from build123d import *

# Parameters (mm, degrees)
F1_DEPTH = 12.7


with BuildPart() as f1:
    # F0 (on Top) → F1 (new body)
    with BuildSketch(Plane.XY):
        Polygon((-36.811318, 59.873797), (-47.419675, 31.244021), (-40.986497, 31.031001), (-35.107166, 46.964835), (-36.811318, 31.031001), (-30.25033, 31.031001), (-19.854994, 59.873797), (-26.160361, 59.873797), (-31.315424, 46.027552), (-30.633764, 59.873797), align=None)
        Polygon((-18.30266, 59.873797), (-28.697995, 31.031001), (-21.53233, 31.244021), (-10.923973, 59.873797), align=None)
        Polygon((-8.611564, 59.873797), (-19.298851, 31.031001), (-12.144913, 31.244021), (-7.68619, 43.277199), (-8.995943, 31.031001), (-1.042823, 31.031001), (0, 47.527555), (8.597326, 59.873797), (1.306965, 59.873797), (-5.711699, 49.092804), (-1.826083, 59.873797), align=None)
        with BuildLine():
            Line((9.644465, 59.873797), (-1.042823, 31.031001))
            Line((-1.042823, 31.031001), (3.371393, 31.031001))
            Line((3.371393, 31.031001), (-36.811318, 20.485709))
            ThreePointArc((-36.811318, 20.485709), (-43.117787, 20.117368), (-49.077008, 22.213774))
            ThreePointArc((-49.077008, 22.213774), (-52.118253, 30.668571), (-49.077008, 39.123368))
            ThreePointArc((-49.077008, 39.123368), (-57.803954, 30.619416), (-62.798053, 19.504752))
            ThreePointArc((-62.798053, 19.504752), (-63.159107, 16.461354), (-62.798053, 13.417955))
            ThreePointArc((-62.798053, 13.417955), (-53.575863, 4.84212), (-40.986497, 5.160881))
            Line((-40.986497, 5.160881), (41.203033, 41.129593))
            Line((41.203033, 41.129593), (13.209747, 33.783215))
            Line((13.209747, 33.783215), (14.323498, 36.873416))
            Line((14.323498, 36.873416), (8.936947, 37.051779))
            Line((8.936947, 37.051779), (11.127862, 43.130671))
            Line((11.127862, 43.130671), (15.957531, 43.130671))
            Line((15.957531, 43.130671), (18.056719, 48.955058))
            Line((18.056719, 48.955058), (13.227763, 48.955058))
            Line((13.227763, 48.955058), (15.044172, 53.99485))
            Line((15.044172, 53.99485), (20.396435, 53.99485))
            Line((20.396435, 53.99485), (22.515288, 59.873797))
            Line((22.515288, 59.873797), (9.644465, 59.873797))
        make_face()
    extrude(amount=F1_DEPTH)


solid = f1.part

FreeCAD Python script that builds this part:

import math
import FreeCAD as App
import Part
import Sketcher
from FreeCAD import Vector
Q = App.Units.Quantity


def add_polygon(sketch, points):
    """Adds a closed chain of lines whose ends are joined by coincident constraints."""
    first, n = sketch.GeometryCount, len(points)
    for a, b in zip(points, points[1:] + points[:1]):
        sketch.addGeometry(Part.LineSegment(App.Vector(*a, 0), App.Vector(*b, 0)), False)
    for i in range(n):
        sketch.addConstraint(Sketcher.Constraint("Coincident", first + i, 2, first + (i + 1) % n, 1))

doc = App.newDocument("Part")
params = doc.addObject("Spreadsheet::Sheet", "Params")
for row, (alias, value) in enumerate([
    ("pad1_length", "0.5 in"),
], start=1):
    params.set(f"A{row}", alias)
    params.set(f"B{row}", "=" + value)
    params.setAlias(f"B{row}", alias)

body = doc.addObject("PartDesign::Body", "Body")
body.AllowCompound = True

sketch1 = body.newObject("Sketcher::SketchObject", "Sketch")
sketch1.AttachmentSupport = (doc.getObject("XY_Plane"), [""])
sketch1.MapMode = "FlatFace"
add_polygon(sketch1, [(-36.8, 59.9), (-47.4, 31.2), (-41, 31), (-35.1, 47), (-36.8, 31), (-30.3, 31), (-19.9, 59.9), (-26.2, 59.9), (-31.3, 46), (-30.6, 59.9)])
add_polygon(sketch1, [(-18.3, 59.9), (-28.7, 31), (-21.5, 31.2), (-10.9, 59.9)])
add_polygon(sketch1, [(-8.6, 59.9), (-19.3, 31), (-12.1, 31.2), (-7.7, 43.3), (-9, 31), (-1, 31), (0, 47.5), (8.6, 59.9), (1.3, 59.9), (-5.7, 49.1), (-1.8, 59.9)])
sketch1.addGeometry(Part.LineSegment(Vector(9.6, 59.9, 0), Vector(-1, 31, 0)), False)
sketch1.addGeometry(Part.LineSegment(Vector(-1, 31, 0), Vector(3.4, 31, 0)), False)
sketch1.addGeometry(Part.LineSegment(Vector(3.4, 31, 0), Vector(-36.8, 20.5, 0)), False)
sketch1.addGeometry(Part.ArcOfCircle(Part.Circle(Vector(-40.9, 36, 0), Vector(0, 0, 1), 16), math.radians(-121), math.radians(-75)), False)
sketch1.addGeometry(Part.ArcOfCircle(Part.Circle(Vector(-38.8, 30.7, 0), Vector(0, 0, 1), 13.3), math.radians(140), math.radians(220)), False)
sketch1.addGeometry(Part.ArcOfCircle(Part.Circle(Vector(-31.1, 11.9, 0), Vector(0, 0, 1), 32.6), math.radians(123), math.radians(167)), False)
sketch1.addGeometry(Part.ArcOfCircle(Part.Circle(Vector(-50.2, 16.5, 0), Vector(0, 0, 1), 13), math.radians(166), math.radians(194)), False)
sketch1.addGeometry(Part.ArcOfCircle(Part.Circle(Vector(-47.7, 20.4, 0), Vector(0, 0, 1), 16.7), math.radians(-155), math.radians(-66)), False)
sketch1.addGeometry(Part.LineSegment(Vector(-41, 5.2, 0), Vector(41.2, 41.1, 0)), False)
sketch1.addGeometry(Part.LineSegment(Vector(41.2, 41.1, 0), Vector(13.2, 33.8, 0)), False)
sketch1.addGeometry(Part.LineSegment(Vector(13.2, 33.8, 0), Vector(14.3, 36.9, 0)), False)
sketch1.addGeometry(Part.LineSegment(Vector(14.3, 36.9, 0), Vector(8.9, 37.1, 0)), False)
sketch1.addGeometry(Part.LineSegment(Vector(8.9, 37.1, 0), Vector(11.1, 43.1, 0)), False)
sketch1.addGeometry(Part.LineSegment(Vector(11.1, 43.1, 0), Vector(16, 43.1, 0)), False)
sketch1.addGeometry(Part.LineSegment(Vector(16, 43.1, 0), Vector(18.1, 49, 0)), False)
sketch1.addGeometry(Part.LineSegment(Vector(18.1, 49, 0), Vector(13.2, 49, 0)), False)
sketch1.addGeometry(Part.LineSegment(Vector(13.2, 49, 0), Vector(15, 54, 0)), False)
sketch1.addGeometry(Part.LineSegment(Vector(15, 54, 0), Vector(20.4, 54, 0)), False)
sketch1.addGeometry(Part.LineSegment(Vector(20.4, 54, 0), Vector(22.5, 59.9, 0)), False)
sketch1.addGeometry(Part.LineSegment(Vector(22.5, 59.9, 0), Vector(9.6, 59.9, 0)), False)
sketch1.addConstraint(Sketcher.Constraint("Coincident", 25, 2, 26, 1))
sketch1.addConstraint(Sketcher.Constraint("Coincident", 26, 2, 27, 1))
sketch1.addConstraint(Sketcher.Constraint("Tangent", 27, 2, 28, 2))
sketch1.addConstraint(Sketcher.Constraint("Coincident", 28, 1, 29, 2))
sketch1.addConstraint(Sketcher.Constraint("Coincident", 29, 1, 30, 1))
sketch1.addConstraint(Sketcher.Constraint("Coincident", 30, 2, 31, 1))
sketch1.addConstraint(Sketcher.Constraint("Coincident", 31, 2, 32, 1))
sketch1.addConstraint(Sketcher.Constraint("Tangent", 32, 2, 33, 1))
sketch1.addConstraint(Sketcher.Constraint("Coincident", 33, 2, 34, 1))
sketch1.addConstraint(Sketcher.Constraint("Coincident", 34, 2, 35, 1))
sketch1.addConstraint(Sketcher.Constraint("Coincident", 35, 2, 36, 1))
sketch1.addConstraint(Sketcher.Constraint("Coincident", 36, 2, 37, 1))
sketch1.addConstraint(Sketcher.Constraint("Coincident", 37, 2, 38, 1))
sketch1.addConstraint(Sketcher.Constraint("Coincident", 38, 2, 39, 1))
sketch1.addConstraint(Sketcher.Constraint("Coincident", 39, 2, 40, 1))
sketch1.addConstraint(Sketcher.Constraint("Coincident", 40, 2, 41, 1))
sketch1.addConstraint(Sketcher.Constraint("Coincident", 41, 2, 42, 1))
sketch1.addConstraint(Sketcher.Constraint("Coincident", 42, 2, 43, 1))
sketch1.addConstraint(Sketcher.Constraint("Coincident", 43, 2, 44, 1))
sketch1.addConstraint(Sketcher.Constraint("Coincident", 44, 2, 25, 1))
sketch1.addConstraint(Sketcher.Constraint("Horizontal", 4))
sketch1.addConstraint(Sketcher.Constraint("Horizontal", 6))
sketch1.addConstraint(Sketcher.Constraint("Horizontal", 9))
sketch1.addConstraint(Sketcher.Constraint("Horizontal", 13))
sketch1.addConstraint(Sketcher.Constraint("Horizontal", 18))
sketch1.addConstraint(Sketcher.Constraint("Horizontal", 21))
sketch1.addConstraint(Sketcher.Constraint("Horizontal", 24))
sketch1.addConstraint(Sketcher.Constraint("Horizontal", 26))
sketch1.addConstraint(Sketcher.Constraint("Horizontal", 38))
sketch1.addConstraint(Sketcher.Constraint("Horizontal", 40))
sketch1.addConstraint(Sketcher.Constraint("Horizontal", 42))
sketch1.addConstraint(Sketcher.Constraint("Horizontal", 44))
sketch1.addConstraint(Sketcher.Constraint("Coincident", 25, 2, 18, 2))
sketch1.addConstraint(Sketcher.Constraint("PointOnObject", 19, 2, -2))
sketch1.addConstraint(Sketcher.Constraint("Parallel", 5, 10))
sketch1.addConstraint(Sketcher.Constraint("Parallel", 0, 12))
sketch1.addConstraint(Sketcher.Constraint("Parallel", 12, 14))
sketch1.addConstraint(Sketcher.Constraint("Parallel", 14, 16))
sketch1.addConstraint(Sketcher.Constraint("Parallel", 3, 17))
sketch1.addConstraint(Sketcher.Constraint("Parallel", 10, 23))
sketch1.addConstraint(Sketcher.Constraint("Parallel", 16, 25))
sketch1.addConstraint(Sketcher.Constraint("Parallel", 27, 34))
sketch1.addConstraint(Sketcher.Constraint("Parallel", 23, 35))
sketch1.addConstraint(Sketcher.Constraint("Parallel", 1, 36))
sketch1.addConstraint(Sketcher.Constraint("Parallel", 35, 37))
sketch1.addConstraint(Sketcher.Constraint("Parallel", 37, 39))
sketch1.addConstraint(Sketcher.Constraint("Parallel", 39, 41))
sketch1.addConstraint(Sketcher.Constraint("Parallel", 41, 43))
sketch1.addConstraint(Sketcher.Constraint("Horizontal", 1, 2, 3, 2))
sketch1.addConstraint(Sketcher.Constraint("Horizontal", 6, 2, 8, 2))
sketch1.addConstraint(Sketcher.Constraint("Horizontal", 4, 2, 10, 2))
sketch1.addConstraint(Sketcher.Constraint("Horizontal", 0, 2, 11, 2))
sketch1.addConstraint(Sketcher.Constraint("Horizontal", 9, 2, 12, 2))
sketch1.addConstraint(Sketcher.Constraint("Horizontal", 10, 2, 14, 2))
sketch1.addConstraint(Sketcher.Constraint("Horizontal", 11, 2, 15, 2))
sketch1.addConstraint(Sketcher.Constraint("Horizontal", 14, 2, 17, 2))
sketch1.addConstraint(Sketcher.Constraint("Horizontal", 13, 2, 20, 2))
sketch1.addConstraint(Sketcher.Constraint("Horizontal", 21, 2, 23, 2))
sketch1.addConstraint(Sketcher.Constraint("Horizontal", 24, 2, 43, 2))
sketch1.addConstraint(Sketcher.Constraint("Vertical", 3, 2, 9, 2))
sketch1.addConstraint(Sketcher.Constraint("Vertical", 9, 2, 27, 2))
sketch1.addConstraint(Sketcher.Constraint("Vertical", 28, 1, 29, 1))
sketch1.addConstraint(Sketcher.Constraint("Vertical", 30, 2, 31, 2))
sketch1.addConstraint(Sketcher.Constraint("Vertical", 1, 2, 32, 2))
sketch1.addConstraint(Sketcher.Constraint("Radius", 29, 13.272979))
sketch1.addConstraint(Sketcher.Constraint("Radius", 28, 16.032872))
sketch1.addConstraint(Sketcher.Constraint("Radius", 30, 32.594917))
sketch1.addConstraint(Sketcher.Constraint("Radius", 31, 13.007243))
sketch1.addConstraint(Sketcher.Constraint("Radius", 32, 16.675453))
sketch1.addConstraint(Sketcher.Constraint("DistanceX", 1, 2, 29, 3, Q("0.0843001 in")))
sketch1.addConstraint(Sketcher.Constraint("DistanceX", 28, 3, 7, 2, Q("0.3766002 in")))
sketch1.addConstraint(Sketcher.Constraint("DistanceY", 27, 2, 29, 3, Q("0.4009001 in")))
sketch1.addConstraint(Sketcher.Constraint("DistanceX", 18, 1, 18, 2, 7.95312))
sketch1.addConstraint(Sketcher.Constraint("DistanceX", 21, 2, 21, 1, 7.290361))
sketch1.addConstraint(Sketcher.Constraint("DistanceX", 24, 2, 24, 1, 6.785481))
sketch1.addConstraint(Sketcher.Constraint("DistanceX", 38, 1, 38, 2, 4.829669))
sketch1.addConstraint(Sketcher.Constraint("DistanceY", -1, 1, 1, 2, 31.031001))
sketch1.addConstraint(Sketcher.Constraint("DistanceY", -1, 1, 16, 2, 43.277199))
sketch1.addConstraint(Sketcher.Constraint("DistanceX", 22, 2, -1, 1, 5.711699))
sketch1.addConstraint(Sketcher.Constraint("DistanceX", -1, 1, 35, 2, 14.323498))
sketch1.addConstraint(Sketcher.Constraint("DistanceY", 31, 3, 28, 3, 19.5321))
sketch1.addConstraint(Sketcher.Constraint("DistanceX", 0, 2, 29, 3, 8.574401))
sketch1.addConstraint(Sketcher.Constraint("DistanceX", 28, 3, 2, 2, 5.773902))
sketch1.addConstraint(Sketcher.Constraint("DistanceX", 32, 3, 3, 2, 10.860699))
sketch1.addConstraint(Sketcher.Constraint("DistanceY", 28, 3, 7, 2, 10.034099))
sketch1.addConstraint(Sketcher.Constraint("DistanceX", 4, 2, 11, 2, 8.718))
sketch1.addConstraint(Sketcher.Constraint("DistanceX", 6, 2, 13, 2, 7.857701))
sketch1.addConstraint(Sketcher.Constraint("DistanceY", 16, 2, 12, 2, 16.596598))
sketch1.addConstraint(Sketcher.Constraint("DistanceX", 12, 2, 20, 2, 19.521299))
sketch1.addConstraint(Sketcher.Constraint("DistanceY", 31, 3, 30, 2, 3.043399))
sketch1.addConstraint(Sketcher.Constraint("DistanceY", 32, 2, 32, 3, 15.276602))
sketch1.addConstraint(Sketcher.Constraint("DistanceY", 34, 2, 35, 2, 3.090201))
sketch1.addConstraint(Sketcher.Constraint("DistanceX", 36, 2, 34, 2, 4.2728))
sketch1.addConstraint(Sketcher.Constraint("DistanceX", 37, 2, 40, 2, 2.099901))
sketch1.addConstraint(Sketcher.Constraint("DistanceX", 21, 2, 44, 2, 8.3375))
sketch1.addConstraint(Sketcher.Constraint("Distance", 0, 30.531972))
sketch1.addConstraint(Sketcher.Constraint("Distance", 2, 16.983922))
sketch1.addConstraint(Sketcher.Constraint("Distance", 5, 30.658928))
sketch1.addConstraint(Sketcher.Constraint("Distance", 11, 7.168831))
sketch1.addConstraint(Sketcher.Constraint("Distance", 15, 7.157109))
sketch1.addConstraint(Sketcher.Constraint("Distance", 17, 12.316039))
sketch1.addConstraint(Sketcher.Constraint("Distance", 19, 16.529482))
sketch1.addConstraint(Sketcher.Constraint("Distance", 22, 12.864348))
sketch1.addConstraint(Sketcher.Constraint("Distance", 33, 89.715479))
sketch1.addConstraint(Sketcher.Constraint("Distance", 37, 6.461659))
sketch1.addConstraint(Sketcher.Constraint("Distance", 39, 6.191129))
sketch1.addConstraint(Sketcher.Constraint("Distance", 41, 5.35713))
sketch1.addConstraint(Sketcher.Constraint("DistanceX", 4, 1, 4, 2, 6.560988))
sketch1.addConstraint(Sketcher.Constraint("DistanceX", 9, 2, 9, 1, 6.177554))
sketch1.addConstraint(Sketcher.Constraint("DistanceX", 26, 1, 26, 2, 4.414216))
sketch1.addConstraint(Sketcher.Constraint("DistanceX", 42, 1, 42, 2, 5.352263))
sketch1.addConstraint(Sketcher.Constraint("DistanceX", 44, 2, 44, 1, 12.870823))
pad1 = body.newObject("PartDesign::Pad", "Pad")
pad1.Profile = sketch1
pad1.setExpression("Length", "Params.pad1_length")

doc.recompute()
